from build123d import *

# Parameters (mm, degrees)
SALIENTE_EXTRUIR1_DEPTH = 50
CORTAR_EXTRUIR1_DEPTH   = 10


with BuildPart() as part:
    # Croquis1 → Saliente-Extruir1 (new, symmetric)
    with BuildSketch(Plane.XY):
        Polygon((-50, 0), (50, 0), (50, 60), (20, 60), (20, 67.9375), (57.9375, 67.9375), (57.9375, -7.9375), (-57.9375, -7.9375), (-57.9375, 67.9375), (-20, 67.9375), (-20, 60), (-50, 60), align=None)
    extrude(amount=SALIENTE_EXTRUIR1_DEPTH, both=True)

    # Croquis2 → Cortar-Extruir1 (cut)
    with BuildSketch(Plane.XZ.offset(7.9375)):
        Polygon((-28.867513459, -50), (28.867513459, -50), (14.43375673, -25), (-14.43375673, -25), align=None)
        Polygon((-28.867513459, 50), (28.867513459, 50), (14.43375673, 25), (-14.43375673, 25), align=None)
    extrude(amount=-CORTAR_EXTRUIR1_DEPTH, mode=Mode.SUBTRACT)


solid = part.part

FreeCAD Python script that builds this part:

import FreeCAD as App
import Part
import Sketcher

V = App.Vector
Q = App.Units.Quantity

doc = App.newDocument("Part")
params = doc.addObject("Spreadsheet::Sheet", "Params")
for row, (alias, value) in enumerate([
    ("sketch1_width", "100 mm"),
    ("sketch1_width2", "30 mm"),
    ("sketch1_height", "60 mm"),
    ("pad1_length", "100 mm"),
    ("pocket1_length", "10 mm"),
], start=1):
    params.set(f"A{row}", alias)
    params.set(f"B{row}", "=" + value)
    params.setAlias(f"B{row}", alias)

body = doc.addObject("PartDesign::Body", "Body")

sketch1 = body.newObject("Sketcher::SketchObject", "Sketch")
sketch1.AttachmentSupport = (doc.getObject("XY_Plane"), [""])
sketch1.MapMode = "FlatFace"
sketch1.addGeometry([
    Part.LineSegment(V(50, 0, 0), V(-50, 0, 0)),
    Part.LineSegment(V(-50, 0, 0), V(-50, 60, 0)),
    Part.LineSegment(V(-50, 60, 0), V(-20, 60, 0)),
    Part.LineSegment(V(-20, 60, 0), V(-20, 68, 0)),
    Part.LineSegment(V(-20, 68, 0), V(-58, 68, 0)),
    Part.LineSegment(V(-58, 68, 0), V(-58, -8, 0)),
    Part.LineSegment(V(-58, -8, 0), V(58, -8, 0)),
    Part.LineSegment(V(58, -8, 0), V(58, 68, 0)),
    Part.LineSegment(V(58, 68, 0), V(20, 68, 0)),
    Part.LineSegment(V(20, 68, 0), V(20, 60, 0)),
    Part.LineSegment(V(20, 60, 0), V(50, 60, 0)),
    Part.LineSegment(V(50, 60, 0), V(50, 0, 0)),
], False)
sketch1.addConstraint([
    Sketcher.Constraint("Coincident", 0, 2, 1, 1),
    Sketcher.Constraint("Coincident", 1, 2, 2, 1),
    Sketcher.Constraint("Coincident", 2, 2, 3, 1),
    Sketcher.Constraint("Coincident", 3, 2, 4, 1),
    Sketcher.Constraint("Coincident", 4, 2, 5, 1),
    Sketcher.Constraint("Coincident", 5, 2, 6, 1),
    Sketcher.Constraint("Coincident", 6, 2, 7, 1),
    Sketcher.Constraint("Coincident", 7, 2, 8, 1),
    Sketcher.Constraint("Coincident", 8, 2, 9, 1),
    Sketcher.Constraint("Coincident", 9, 2, 10, 1),
    Sketcher.Constraint("Coincident", 10, 2, 11, 1),
    Sketcher.Constraint("Coincident", 11, 2, 0, 1),
    Sketcher.Constraint("Horizontal", 0),
    Sketcher.Constraint("Vertical", 1),
    Sketcher.Constraint("Horizontal", 2),
    Sketcher.Constraint("Vertical", 3),
    Sketcher.Constraint("Horizontal", 4),
    Sketcher.Constraint("Vertical", 5),
    Sketcher.Constraint("Horizontal", 6),
    Sketcher.Constraint("Vertical", 7),
    Sketcher.Constraint("Horizontal", 8),
    Sketcher.Constraint("Vertical", 9),
    Sketcher.Constraint("Horizontal", 10),
    Sketcher.Constraint("Vertical", 11),
    Sketcher.Constraint("Symmetric", 0, 2, 11, 2, -1, 1),
    Sketcher.Constraint("Symmetric", 4, 2, 7, 2, -2),
    Sketcher.Constraint("Symmetric", 2, 2, 9, 2, -2),
    Sketcher.Constraint("DistanceX", 0, 2, 0, 1, Q("100 mm")),
    Sketcher.Constraint("DistanceX", 2, 1, 2, 2, Q("30 mm")),
    Sketcher.Constraint("DistanceY", 1, 1, 1, 2, Q("60 mm")),
    Sketcher.Constraint("DistanceX", 6, 1, 6, 2, Q("115.875 mm")),
    Sketcher.Constraint("DistanceY", 5, 2, 5, 1, Q("75.875 mm")),
    Sketcher.Constraint("DistanceY", 3, 1, 3, 2, Q("7.9375 mm")),
])
sketch1.setExpression("Constraints[27]", "Params.sketch1_width")
sketch1.setExpression("Constraints[28]", "Params.sketch1_width2")
sketch1.setExpression("Constraints[29]", "Params.sketch1_height")
pad1 = body.newObject("PartDesign::Pad", "Pad")
pad1.Profile = sketch1
pad1.setExpression("Length", "Params.pad1_length")
pad1.Midplane = True

sketch2 = body.newObject("Sketcher::SketchObject", "Sketch001")
sketch2.AttachmentSupport = (doc.getObject("XZ_Plane"), [""])
sketch2.MapMode = "FlatFace"
sketch2.AttachmentOffset = App.Placement(V(0, 0, 7.9375), App.Rotation())
sketch2.addGeometry([
    Part.LineSegment(V(-29, -50, 0), V(29, -50, 0)),
    Part.LineSegment(V(29, -50, 0), V(14, -25, 0)),
    Part.LineSegment(V(14, -25, 0), V(-14, -25, 0)),
    Part.LineSegment(V(-14, -25, 0), V(-29, -50, 0)),
    Part.LineSegment(V(29, 50, 0), V(-29, 50, 0)),
    Part.LineSegment(V(-29, 50, 0), V(-14, 25, 0)),
    Part.LineSegment(V(-14, 25, 0), V(14, 25, 0)),
    Part.LineSegment(V(14, 25, 0), V(29, 50, 0)),
], False)
sketch2.addConstraint([
    Sketcher.Constraint("Coincident", 0, 2, 1, 1),
    Sketcher.Constraint("Coincident", 1, 2, 2, 1),
    Sketcher.Constraint("Coincident", 2, 2, 3, 1),
    Sketcher.Constraint("Coincident", 3, 2, 0, 1),
    Sketcher.Constraint("Coincident", 4, 2, 5, 1),
    Sketcher.Constraint("Coincident", 5, 2, 6, 1),
    Sketcher.Constraint("Coincident", 6, 2, 7, 1),
    Sketcher.Constraint("Coincident", 7, 2, 4, 1),
    Sketcher.Constraint("Horizontal", 0),
    Sketcher.Constraint("Horizontal", 2),
    Sketcher.Constraint("Horizontal", 4),
    Sketcher.Constraint("Horizontal", 6),
    Sketcher.Constraint("Symmetric", 0, 2, 4, 2, -1, 1),
    Sketcher.Constraint("Symmetric", 1, 2, 5, 2, -1, 1),
    Sketcher.Constraint("Parallel", 3, 7),
    Sketcher.Constraint("Vertical", 3, 2, 4, 2),
    Sketcher.Constraint("Vertical", 2, 2, 5, 2),
    Sketcher.Constraint("Vertical", 1, 2, 6, 2),
    Sketcher.Constraint("Angle", 1, Q("120 deg")),
    Sketcher.Constraint("DistanceY", 0, 2, -1, 1, Q("50 mm")),
    Sketcher.Constraint("DistanceY", 1, 2, -1, 1, Q("25 mm")),
    Sketcher.Constraint("DistanceX", 0, 1, 0, 2, Q("57.735027 mm")),
])
pocket1 = body.newObject("PartDesign::Pocket", "Pocket")
pocket1.Profile = sketch2
pocket1.setExpression("Length", "Params.pocket1_length")

doc.recompute()
